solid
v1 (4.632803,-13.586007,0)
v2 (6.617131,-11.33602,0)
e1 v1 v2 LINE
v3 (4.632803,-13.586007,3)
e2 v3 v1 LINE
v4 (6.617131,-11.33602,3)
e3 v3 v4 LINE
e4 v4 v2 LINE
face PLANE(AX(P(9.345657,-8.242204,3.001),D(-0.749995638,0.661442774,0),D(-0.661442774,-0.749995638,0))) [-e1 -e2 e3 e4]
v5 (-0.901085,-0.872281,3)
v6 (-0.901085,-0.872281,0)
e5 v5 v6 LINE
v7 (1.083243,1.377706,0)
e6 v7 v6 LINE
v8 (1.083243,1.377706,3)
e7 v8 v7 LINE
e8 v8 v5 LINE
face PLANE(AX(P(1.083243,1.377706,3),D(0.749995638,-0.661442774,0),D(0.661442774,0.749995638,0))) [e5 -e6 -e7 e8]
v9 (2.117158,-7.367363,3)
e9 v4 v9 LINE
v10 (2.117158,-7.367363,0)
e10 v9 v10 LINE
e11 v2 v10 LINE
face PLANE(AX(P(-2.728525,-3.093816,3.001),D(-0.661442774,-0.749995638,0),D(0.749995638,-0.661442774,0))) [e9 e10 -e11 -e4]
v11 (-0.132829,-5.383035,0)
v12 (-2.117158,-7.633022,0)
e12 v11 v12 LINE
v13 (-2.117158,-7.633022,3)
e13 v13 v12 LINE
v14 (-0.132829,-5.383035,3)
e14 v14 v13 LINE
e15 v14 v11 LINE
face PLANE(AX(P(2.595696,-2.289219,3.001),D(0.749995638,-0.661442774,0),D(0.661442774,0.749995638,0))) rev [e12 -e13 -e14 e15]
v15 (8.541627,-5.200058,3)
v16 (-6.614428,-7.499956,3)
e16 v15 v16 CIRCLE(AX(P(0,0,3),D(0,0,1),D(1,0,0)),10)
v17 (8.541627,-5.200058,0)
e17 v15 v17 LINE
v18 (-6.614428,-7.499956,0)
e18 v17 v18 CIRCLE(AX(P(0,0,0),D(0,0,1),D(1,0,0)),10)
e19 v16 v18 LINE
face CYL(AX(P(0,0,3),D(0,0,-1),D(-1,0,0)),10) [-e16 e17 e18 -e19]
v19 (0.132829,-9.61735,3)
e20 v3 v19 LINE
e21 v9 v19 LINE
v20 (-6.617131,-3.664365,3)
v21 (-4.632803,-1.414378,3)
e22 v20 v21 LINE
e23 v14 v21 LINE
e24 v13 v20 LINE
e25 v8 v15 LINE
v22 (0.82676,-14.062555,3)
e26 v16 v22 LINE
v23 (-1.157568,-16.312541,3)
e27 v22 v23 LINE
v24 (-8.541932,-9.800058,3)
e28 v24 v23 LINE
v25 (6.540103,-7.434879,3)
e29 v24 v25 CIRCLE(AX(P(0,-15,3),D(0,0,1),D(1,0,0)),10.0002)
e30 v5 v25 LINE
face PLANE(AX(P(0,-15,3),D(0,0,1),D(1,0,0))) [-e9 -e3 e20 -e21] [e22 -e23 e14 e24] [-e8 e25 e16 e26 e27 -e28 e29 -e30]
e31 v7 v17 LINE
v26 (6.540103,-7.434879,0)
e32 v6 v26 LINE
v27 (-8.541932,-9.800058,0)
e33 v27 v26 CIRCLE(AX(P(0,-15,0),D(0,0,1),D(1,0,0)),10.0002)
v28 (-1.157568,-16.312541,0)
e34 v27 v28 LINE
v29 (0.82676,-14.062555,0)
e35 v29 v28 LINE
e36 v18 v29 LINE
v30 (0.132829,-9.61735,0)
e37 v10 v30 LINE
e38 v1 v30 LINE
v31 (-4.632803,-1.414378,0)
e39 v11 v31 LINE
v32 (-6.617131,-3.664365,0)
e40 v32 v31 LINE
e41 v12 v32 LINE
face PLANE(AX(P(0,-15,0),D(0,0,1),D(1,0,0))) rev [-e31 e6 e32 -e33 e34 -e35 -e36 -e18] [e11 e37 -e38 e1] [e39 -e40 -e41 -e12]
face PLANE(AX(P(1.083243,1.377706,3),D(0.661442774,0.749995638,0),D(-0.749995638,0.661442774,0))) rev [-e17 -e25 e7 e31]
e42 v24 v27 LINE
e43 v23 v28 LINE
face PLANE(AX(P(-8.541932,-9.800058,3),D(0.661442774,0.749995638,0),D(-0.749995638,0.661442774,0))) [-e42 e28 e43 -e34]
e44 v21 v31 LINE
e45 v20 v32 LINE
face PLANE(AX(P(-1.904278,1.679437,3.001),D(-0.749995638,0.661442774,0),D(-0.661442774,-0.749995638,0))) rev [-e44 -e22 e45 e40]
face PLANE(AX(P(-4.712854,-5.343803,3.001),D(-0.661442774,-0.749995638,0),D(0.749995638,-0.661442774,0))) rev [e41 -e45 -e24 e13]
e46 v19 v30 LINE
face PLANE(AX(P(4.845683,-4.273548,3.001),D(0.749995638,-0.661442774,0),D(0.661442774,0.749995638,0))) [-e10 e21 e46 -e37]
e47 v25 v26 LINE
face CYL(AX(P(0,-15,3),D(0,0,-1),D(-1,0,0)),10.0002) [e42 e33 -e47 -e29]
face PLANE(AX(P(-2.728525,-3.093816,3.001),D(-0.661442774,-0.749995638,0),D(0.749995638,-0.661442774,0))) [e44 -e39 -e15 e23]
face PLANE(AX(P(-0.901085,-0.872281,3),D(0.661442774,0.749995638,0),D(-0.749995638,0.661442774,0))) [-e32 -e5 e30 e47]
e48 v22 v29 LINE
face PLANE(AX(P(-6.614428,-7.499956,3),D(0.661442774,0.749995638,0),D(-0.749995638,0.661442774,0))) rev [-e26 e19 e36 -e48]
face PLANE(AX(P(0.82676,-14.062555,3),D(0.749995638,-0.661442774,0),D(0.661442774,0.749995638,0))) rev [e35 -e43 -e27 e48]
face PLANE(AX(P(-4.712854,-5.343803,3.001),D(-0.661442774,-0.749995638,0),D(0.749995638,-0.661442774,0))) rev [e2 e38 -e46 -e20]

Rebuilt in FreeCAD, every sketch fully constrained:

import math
import FreeCAD as App
import Part
import Sketcher

V = App.Vector
Q = App.Units.Quantity


def add_polygon(sketch, points):
    """Adds a closed chain of lines whose ends are joined by coincident constraints."""
    first, n = sketch.GeometryCount, len(points)
    for a, b in zip(points, points[1:] + points[:1]):
        sketch.addGeometry(Part.LineSegment(App.Vector(*a, 0), App.Vector(*b, 0)), False)
    for i in range(n):
        sketch.addConstraint(Sketcher.Constraint("Coincident", first + i, 2, first + (i + 1) % n, 1))

doc = App.newDocument("Part")
body = doc.addObject("PartDesign::Body", "Body")

# Sketch on XY plane
sketch1 = body.newObject("Sketcher::SketchObject", "Sketch")
sketch1.AttachmentSupport = (doc.getObject("XY_Plane"), [""])
sketch1.MapMode = "FlatFace"
sketch1.addGeometry(Part.LineSegment(V(-6.6, -7.5, 0), V(0.8, -14.1, 0)), False)
sketch1.addGeometry(Part.LineSegment(V(0.8, -14.1, 0), V(-1.2, -16.3, 0)), False)
sketch1.addGeometry(Part.LineSegment(V(-1.2, -16.3, 0), V(-8.5, -9.8, 0)), False)
sketch1.addGeometry(Part.ArcOfCircle(Part.Circle(V(0, -15, 0), V(0, 0, 1), 10), math.radians(149), math.radians(409)), False)
sketch1.addGeometry(Part.LineSegment(V(6.5, -7.4, 0), V(-0.9, -0.9, 0)), False)
sketch1.addGeometry(Part.LineSegment(V(-0.9, -0.9, 0), V(1.1, 1.4, 0)), False)
sketch1.addGeometry(Part.LineSegment(V(1.1, 1.4, 0), V(8.5, -5.2, 0)), False)
sketch1.addGeometry(Part.ArcOfCircle(Part.Circle(V(0, 0, 0), V(0, 0, 1), 10), math.radians(-31), math.radians(229)), False)
sketch1.addConstraint(Sketcher.Constraint("Coincident", 0, 2, 1, 1))
sketch1.addConstraint(Sketcher.Constraint("Coincident", 1, 2, 2, 1))
sketch1.addConstraint(Sketcher.Constraint("Coincident", 2, 2, 3, 1))
sketch1.addConstraint(Sketcher.Constraint("Coincident", 3, 2, 4, 1))
sketch1.addConstraint(Sketcher.Constraint("Coincident", 4, 2, 5, 1))
sketch1.addConstraint(Sketcher.Constraint("Coincident", 5, 2, 6, 1))
sketch1.addConstraint(Sketcher.Constraint("Coincident", 6, 2, 7, 1))
sketch1.addConstraint(Sketcher.Constraint("Tangent", 7, 2, 0, 1))
sketch1.addConstraint(Sketcher.Constraint("Coincident", 7, 3, -1, 1))
sketch1.addConstraint(Sketcher.Constraint("PointOnObject", 3, 3, -2))
sketch1.addConstraint(Sketcher.Constraint("Perpendicular", 0, 1))
sketch1.addConstraint(Sketcher.Constraint("Perpendicular", 1, 2))
sketch1.addConstraint(Sketcher.Constraint("Parallel", 2, 4))
sketch1.addConstraint(Sketcher.Constraint("Perpendicular", 4, 5))
sketch1.addConstraint(Sketcher.Constraint("Perpendicular", 5, 6))
sketch1.addConstraint(Sketcher.Constraint("Equal", 0, 4))
sketch1.addConstraint(Sketcher.Constraint("Equal", 1, 5))
sketch1.addConstraint(Sketcher.Constraint("Radius", 7, 10.0))
sketch1.addConstraint(Sketcher.Constraint("Distance", 1, 3.0))
sketch1.addConstraint(Sketcher.Constraint("DistanceY", 3, 3, -1, 1, 15.0))
sketch1.addConstraint(Sketcher.Constraint("Angle", 0, Q("-41.41 deg")))
sketch1.addConstraint(Sketcher.Constraint("Radius", 3, 10.0002))
sketch1.addConstraint(Sketcher.Constraint("DistanceY", 3, 2, 4, 2, 6.562598))
sketch1.addConstraint(Sketcher.Constraint("Distance", 6, 9.94457))
pad1 = body.newObject("PartDesign::Pad", "Pad")
pad1.Profile = sketch1
pad1.Length = 3

# Sketch on XY plane
sketch2 = body.newObject("Sketcher::SketchObject", "Sketch001")
sketch2.AttachmentSupport = (doc.getObject("XY_Plane"), [""])
sketch2.MapMode = "FlatFace"
add_polygon(sketch2, [(4.6, -13.6), (0.1, -9.6), (2.1, -7.4), (6.6, -11.3)])  # lines 0-3
sketch2.addConstraint(Sketcher.Constraint("Perpendicular", 0, 1))
sketch2.addConstraint(Sketcher.Constraint("Perpendicular", 1, 2))
sketch2.addConstraint(Sketcher.Constraint("Perpendicular", 2, 3))
sketch2.addConstraint(Sketcher.Constraint("Distance", 0, 6.0))
sketch2.addConstraint(Sketcher.Constraint("Distance", 1, 3.0))
sketch2.addConstraint(Sketcher.Constraint("Angle", 0, Q("138.59 deg")))
sketch2.addConstraint(Sketcher.Constraint("DistanceX", -1, 1, 0, 2, 0.132829))
sketch2.addConstraint(Sketcher.Constraint("DistanceY", 0, 2, -1, 1, 9.61735))
pocket1 = body.newObject("PartDesign::Pocket", "Pocket")
pocket1.Profile = sketch2
pocket1.Type = "UpToFirst"
pocket1.Reversed = True

# Sketch on XY plane
sketch3 = body.newObject("Sketcher::SketchObject", "Sketch002")
sketch3.AttachmentSupport = (doc.getObject("XY_Plane"), [""])
sketch3.MapMode = "FlatFace"
add_polygon(sketch3, [(-6.6, -3.7), (-4.6, -1.4), (-0.1, -5.4), (-2.1, -7.6)])  # lines 0-3
sketch3.addConstraint(Sketcher.Constraint("Perpendicular", 0, 1))
sketch3.addConstraint(Sketcher.Constraint("Perpendicular", 1, 2))
sketch3.addConstraint(Sketcher.Constraint("Perpendicular", 2, 3))
sketch3.addConstraint(Sketcher.Constraint("Distance", 0, 3.0))
sketch3.addConstraint(Sketcher.Constraint("Distance", 1, 6.0))
sketch3.addConstraint(Sketcher.Constraint("Angle", 0, Q("48.59 deg")))
sketch3.addConstraint(Sketcher.Constraint("DistanceY", 0, 2, -1, 1, 1.414378))
sketch3.addConstraint(Sketcher.Constraint("DistanceX", 1, 2, -1, 1, 0.132829))
pocket2 = body.newObject("PartDesign::Pocket", "Pocket001")
pocket2.Profile = sketch3
pocket2.Type = "UpToFirst"
pocket2.Reversed = True

doc.recompute()
